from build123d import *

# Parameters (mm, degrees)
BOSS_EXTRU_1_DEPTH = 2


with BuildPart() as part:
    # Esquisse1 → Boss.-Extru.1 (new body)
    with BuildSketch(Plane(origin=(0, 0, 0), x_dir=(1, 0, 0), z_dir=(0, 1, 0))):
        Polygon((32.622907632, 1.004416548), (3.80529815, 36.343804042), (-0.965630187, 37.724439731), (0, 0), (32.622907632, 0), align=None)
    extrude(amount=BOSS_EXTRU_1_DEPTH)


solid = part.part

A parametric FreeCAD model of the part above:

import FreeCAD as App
import Part
import Sketcher

V = App.Vector


def add_polygon(sketch, points):
    """Adds a closed chain of lines whose ends are joined by coincident constraints."""
    first, n = sketch.GeometryCount, len(points)
    for a, b in zip(points, points[1:] + points[:1]):
        sketch.addGeometry(Part.LineSegment(App.Vector(*a, 0), App.Vector(*b, 0)), False)
    for i in range(n):
        sketch.addConstraint(Sketcher.Constraint("Coincident", first + i, 2, first + (i + 1) % n, 1))

doc = App.newDocument("Part")
body = doc.addObject("PartDesign::Body", "Body")

sketch1 = body.newObject("Sketcher::SketchObject", "Sketch")
sketch1.AttachmentSupport = (doc.getObject("XZ_Plane"), [""])
sketch1.MapMode = "FlatFace"
add_polygon(sketch1, [(32.622908, -1.004417), (3.805298, -36.343804), (-0.96563, -37.72444), (0, 0), (32.622908, 0)])
sketch1.addConstraint(Sketcher.Constraint("Horizontal", 3))
sketch1.addConstraint(Sketcher.Constraint("Vertical", 4))
sketch1.addConstraint(Sketcher.Constraint("Coincident", 2, 2, -1, 1))
sketch1.addConstraint(Sketcher.Constraint("DistanceX", -1, 1, 0, 2, 3.805298))
sketch1.addConstraint(Sketcher.Constraint("Distance", 1, 4.96668))
sketch1.addConstraint(Sketcher.Constraint("DistanceX", 3, 1, 3, 2, 32.622908))
sketch1.addConstraint(Sketcher.Constraint("DistanceY", 4, 2, 4, 1, 1.004417))
sketch1.addConstraint(Sketcher.Constraint("DistanceX", 1, 2, -1, 1, 0.96563))
sketch1.addConstraint(Sketcher.Constraint("DistanceY", 1, 2, -1, 1, 37.72444))
pad1 = body.newObject("PartDesign::Pad", "Pad")
pad1.Profile = sketch1
pad1.Length = 2
pad1.Reversed = True

doc.recompute()
